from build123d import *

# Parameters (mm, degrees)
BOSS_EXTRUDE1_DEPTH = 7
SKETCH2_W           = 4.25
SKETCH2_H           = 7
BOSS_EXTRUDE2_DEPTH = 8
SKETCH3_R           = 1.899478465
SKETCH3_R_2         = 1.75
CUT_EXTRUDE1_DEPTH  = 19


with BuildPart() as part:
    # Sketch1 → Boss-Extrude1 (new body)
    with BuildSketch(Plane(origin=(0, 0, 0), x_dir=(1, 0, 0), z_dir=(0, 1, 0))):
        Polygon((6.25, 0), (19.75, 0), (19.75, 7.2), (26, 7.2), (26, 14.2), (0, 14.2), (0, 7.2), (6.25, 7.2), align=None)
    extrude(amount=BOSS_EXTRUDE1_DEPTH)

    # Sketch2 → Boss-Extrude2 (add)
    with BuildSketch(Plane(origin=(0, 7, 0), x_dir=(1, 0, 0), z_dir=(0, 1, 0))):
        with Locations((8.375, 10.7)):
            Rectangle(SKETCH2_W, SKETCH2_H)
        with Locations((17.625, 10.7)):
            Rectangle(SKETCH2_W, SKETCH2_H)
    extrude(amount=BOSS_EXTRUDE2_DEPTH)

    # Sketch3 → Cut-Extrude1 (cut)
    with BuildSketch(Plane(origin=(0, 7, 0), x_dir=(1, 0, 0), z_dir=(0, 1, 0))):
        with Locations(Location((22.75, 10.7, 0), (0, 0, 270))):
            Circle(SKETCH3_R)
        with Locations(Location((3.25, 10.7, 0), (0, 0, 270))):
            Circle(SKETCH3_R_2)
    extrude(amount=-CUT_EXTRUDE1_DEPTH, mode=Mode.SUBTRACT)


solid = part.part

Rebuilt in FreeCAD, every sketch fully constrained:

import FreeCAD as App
import Part
import Sketcher
Q = App.Units.Quantity


def add_polygon(sketch, points):
    """Adds a closed chain of lines whose ends are joined by coincident constraints."""
    first, n = sketch.GeometryCount, len(points)
    for a, b in zip(points, points[1:] + points[:1]):
        sketch.addGeometry(Part.LineSegment(App.Vector(*a, 0), App.Vector(*b, 0)), False)
    for i in range(n):
        sketch.addConstraint(Sketcher.Constraint("Coincident", first + i, 2, first + (i + 1) % n, 1))

doc = App.newDocument("Part")
body = doc.addObject("PartDesign::Body", "Body")

# Sketch on XZ plane
sketch1 = body.newObject("Sketcher::SketchObject", "Sketch")
sketch1.AttachmentSupport = (doc.getObject("XZ_Plane"), [""])
sketch1.MapMode = "FlatFace"
add_polygon(sketch1, [(6, 0), (20, 0), (20, -7), (26, -7), (26, -14), (0, -14), (0, -7), (6, -7)])  # lines 0-7
sketch1.addConstraint([
    Sketcher.Constraint("Horizontal", 0),
    Sketcher.Constraint("Vertical", 1),
    Sketcher.Constraint("Horizontal", 2),
    Sketcher.Constraint("Vertical", 3),
    Sketcher.Constraint("Horizontal", 4),
    Sketcher.Constraint("Vertical", 5),
    Sketcher.Constraint("Horizontal", 6),
    Sketcher.Constraint("Vertical", 7),
    Sketcher.Constraint("PointOnObject", 0, 2, -1),
    Sketcher.Constraint("PointOnObject", 4, 2, -2),
    Sketcher.Constraint("Horizontal", 2, 2, 5, 2),
    Sketcher.Constraint("Equal", 2, 6),
    Sketcher.Constraint("DistanceX", 4, 2, 4, 1, Q("26 mm")),
    Sketcher.Constraint("DistanceY", 3, 2, 3, 1, Q("7 mm")),
    Sketcher.Constraint("DistanceX", 0, 1, 0, 2, Q("13.5 mm")),
    Sketcher.Constraint("DistanceY", 1, 2, 1, 1, Q("7.2 mm")),
])
pad1 = body.newObject("PartDesign::Pad", "Pad")
pad1.Profile = sketch1
pad1.Length = 7
pad1.Reversed = True

# Sketch on XZ plane
sketch2 = body.newObject("Sketcher::SketchObject", "Sketch001")
sketch2.AttachmentSupport = (doc.getObject("XZ_Plane"), [""])
sketch2.MapMode = "FlatFace"
sketch2.AttachmentOffset = App.Placement(App.Vector(0, 0, -7), App.Rotation())
add_polygon(sketch2, [(6.2, -14.2), (6.2, -7.2), (10.5, -7.2), (10.5, -14.2)])  # lines 0-3
add_polygon(sketch2, [(15.5, -14.2), (15.5, -7.2), (19.8, -7.2), (19.8, -14.2)])  # lines 4-7
sketch2.addConstraint([
    Sketcher.Constraint("Vertical", 0),
    Sketcher.Constraint("Horizontal", 1),
    Sketcher.Constraint("Vertical", 2),
    Sketcher.Constraint("Horizontal", 3),
    Sketcher.Constraint("Vertical", 4),
    Sketcher.Constraint("Horizontal", 5),
    Sketcher.Constraint("Vertical", 6),
    Sketcher.Constraint("Horizontal", 7),
    Sketcher.Constraint("Horizontal", 1, 2, 4, 2),
    Sketcher.Constraint("Horizontal", 3, 2, 6, 2),
    Sketcher.Constraint("Equal", 3, 5),
    Sketcher.Constraint("DistanceY", 0, 1, 0, 2, Q("7 mm")),
    Sketcher.Constraint("DistanceX", 1, 2, 4, 2, Q("5 mm")),
    Sketcher.Constraint("DistanceX", 1, 1, 1, 2, Q("4.25 mm")),
    Sketcher.Constraint("DistanceY", 0, 2, -1, 1, Q("7.2 mm")),
    Sketcher.Constraint("DistanceX", -1, 1, 1, 2, Q("10.5 mm")),
])
pad2 = body.newObject("PartDesign::Pad", "Pad001")
pad2.Profile = sketch2
pad2.Length = 8
pad2.Reversed = True

# Sketch on XZ plane
sketch3 = body.newObject("Sketcher::SketchObject", "Sketch002")
sketch3.AttachmentSupport = (doc.getObject("XZ_Plane"), [""])
sketch3.MapMode = "FlatFace"
sketch3.AttachmentOffset = App.Placement(App.Vector(0, 0, -7), App.Rotation())
sketch3.addGeometry([
    Part.Circle(App.Vector(22.8, -10.7, 0), App.Vector(0, 0, 1), 1.9),
    Part.Circle(App.Vector(3.2, -10.7, 0), App.Vector(0, 0, 1), 1.8),
], False)
sketch3.addConstraint([
    Sketcher.Constraint("Horizontal", 0, 3, 1, 3),
    Sketcher.Constraint("Diameter", 1, Q("3.5 mm")),
    Sketcher.Constraint("DistanceY", 0, 3, -1, 1, Q("10.7 mm")),
    Sketcher.Constraint("DistanceX", 1, 3, 0, 3, Q("19.5 mm")),
    Sketcher.Constraint("DistanceX", -1, 1, 0, 3, Q("22.75 mm")),
    Sketcher.Constraint("Diameter", 0, Q("3.798957 mm")),
])
pocket1 = body.newObject("PartDesign::Pocket", "Pocket")
pocket1.Profile = sketch3
pocket1.Length = 19
pocket1.Reversed = True

doc.recompute()
